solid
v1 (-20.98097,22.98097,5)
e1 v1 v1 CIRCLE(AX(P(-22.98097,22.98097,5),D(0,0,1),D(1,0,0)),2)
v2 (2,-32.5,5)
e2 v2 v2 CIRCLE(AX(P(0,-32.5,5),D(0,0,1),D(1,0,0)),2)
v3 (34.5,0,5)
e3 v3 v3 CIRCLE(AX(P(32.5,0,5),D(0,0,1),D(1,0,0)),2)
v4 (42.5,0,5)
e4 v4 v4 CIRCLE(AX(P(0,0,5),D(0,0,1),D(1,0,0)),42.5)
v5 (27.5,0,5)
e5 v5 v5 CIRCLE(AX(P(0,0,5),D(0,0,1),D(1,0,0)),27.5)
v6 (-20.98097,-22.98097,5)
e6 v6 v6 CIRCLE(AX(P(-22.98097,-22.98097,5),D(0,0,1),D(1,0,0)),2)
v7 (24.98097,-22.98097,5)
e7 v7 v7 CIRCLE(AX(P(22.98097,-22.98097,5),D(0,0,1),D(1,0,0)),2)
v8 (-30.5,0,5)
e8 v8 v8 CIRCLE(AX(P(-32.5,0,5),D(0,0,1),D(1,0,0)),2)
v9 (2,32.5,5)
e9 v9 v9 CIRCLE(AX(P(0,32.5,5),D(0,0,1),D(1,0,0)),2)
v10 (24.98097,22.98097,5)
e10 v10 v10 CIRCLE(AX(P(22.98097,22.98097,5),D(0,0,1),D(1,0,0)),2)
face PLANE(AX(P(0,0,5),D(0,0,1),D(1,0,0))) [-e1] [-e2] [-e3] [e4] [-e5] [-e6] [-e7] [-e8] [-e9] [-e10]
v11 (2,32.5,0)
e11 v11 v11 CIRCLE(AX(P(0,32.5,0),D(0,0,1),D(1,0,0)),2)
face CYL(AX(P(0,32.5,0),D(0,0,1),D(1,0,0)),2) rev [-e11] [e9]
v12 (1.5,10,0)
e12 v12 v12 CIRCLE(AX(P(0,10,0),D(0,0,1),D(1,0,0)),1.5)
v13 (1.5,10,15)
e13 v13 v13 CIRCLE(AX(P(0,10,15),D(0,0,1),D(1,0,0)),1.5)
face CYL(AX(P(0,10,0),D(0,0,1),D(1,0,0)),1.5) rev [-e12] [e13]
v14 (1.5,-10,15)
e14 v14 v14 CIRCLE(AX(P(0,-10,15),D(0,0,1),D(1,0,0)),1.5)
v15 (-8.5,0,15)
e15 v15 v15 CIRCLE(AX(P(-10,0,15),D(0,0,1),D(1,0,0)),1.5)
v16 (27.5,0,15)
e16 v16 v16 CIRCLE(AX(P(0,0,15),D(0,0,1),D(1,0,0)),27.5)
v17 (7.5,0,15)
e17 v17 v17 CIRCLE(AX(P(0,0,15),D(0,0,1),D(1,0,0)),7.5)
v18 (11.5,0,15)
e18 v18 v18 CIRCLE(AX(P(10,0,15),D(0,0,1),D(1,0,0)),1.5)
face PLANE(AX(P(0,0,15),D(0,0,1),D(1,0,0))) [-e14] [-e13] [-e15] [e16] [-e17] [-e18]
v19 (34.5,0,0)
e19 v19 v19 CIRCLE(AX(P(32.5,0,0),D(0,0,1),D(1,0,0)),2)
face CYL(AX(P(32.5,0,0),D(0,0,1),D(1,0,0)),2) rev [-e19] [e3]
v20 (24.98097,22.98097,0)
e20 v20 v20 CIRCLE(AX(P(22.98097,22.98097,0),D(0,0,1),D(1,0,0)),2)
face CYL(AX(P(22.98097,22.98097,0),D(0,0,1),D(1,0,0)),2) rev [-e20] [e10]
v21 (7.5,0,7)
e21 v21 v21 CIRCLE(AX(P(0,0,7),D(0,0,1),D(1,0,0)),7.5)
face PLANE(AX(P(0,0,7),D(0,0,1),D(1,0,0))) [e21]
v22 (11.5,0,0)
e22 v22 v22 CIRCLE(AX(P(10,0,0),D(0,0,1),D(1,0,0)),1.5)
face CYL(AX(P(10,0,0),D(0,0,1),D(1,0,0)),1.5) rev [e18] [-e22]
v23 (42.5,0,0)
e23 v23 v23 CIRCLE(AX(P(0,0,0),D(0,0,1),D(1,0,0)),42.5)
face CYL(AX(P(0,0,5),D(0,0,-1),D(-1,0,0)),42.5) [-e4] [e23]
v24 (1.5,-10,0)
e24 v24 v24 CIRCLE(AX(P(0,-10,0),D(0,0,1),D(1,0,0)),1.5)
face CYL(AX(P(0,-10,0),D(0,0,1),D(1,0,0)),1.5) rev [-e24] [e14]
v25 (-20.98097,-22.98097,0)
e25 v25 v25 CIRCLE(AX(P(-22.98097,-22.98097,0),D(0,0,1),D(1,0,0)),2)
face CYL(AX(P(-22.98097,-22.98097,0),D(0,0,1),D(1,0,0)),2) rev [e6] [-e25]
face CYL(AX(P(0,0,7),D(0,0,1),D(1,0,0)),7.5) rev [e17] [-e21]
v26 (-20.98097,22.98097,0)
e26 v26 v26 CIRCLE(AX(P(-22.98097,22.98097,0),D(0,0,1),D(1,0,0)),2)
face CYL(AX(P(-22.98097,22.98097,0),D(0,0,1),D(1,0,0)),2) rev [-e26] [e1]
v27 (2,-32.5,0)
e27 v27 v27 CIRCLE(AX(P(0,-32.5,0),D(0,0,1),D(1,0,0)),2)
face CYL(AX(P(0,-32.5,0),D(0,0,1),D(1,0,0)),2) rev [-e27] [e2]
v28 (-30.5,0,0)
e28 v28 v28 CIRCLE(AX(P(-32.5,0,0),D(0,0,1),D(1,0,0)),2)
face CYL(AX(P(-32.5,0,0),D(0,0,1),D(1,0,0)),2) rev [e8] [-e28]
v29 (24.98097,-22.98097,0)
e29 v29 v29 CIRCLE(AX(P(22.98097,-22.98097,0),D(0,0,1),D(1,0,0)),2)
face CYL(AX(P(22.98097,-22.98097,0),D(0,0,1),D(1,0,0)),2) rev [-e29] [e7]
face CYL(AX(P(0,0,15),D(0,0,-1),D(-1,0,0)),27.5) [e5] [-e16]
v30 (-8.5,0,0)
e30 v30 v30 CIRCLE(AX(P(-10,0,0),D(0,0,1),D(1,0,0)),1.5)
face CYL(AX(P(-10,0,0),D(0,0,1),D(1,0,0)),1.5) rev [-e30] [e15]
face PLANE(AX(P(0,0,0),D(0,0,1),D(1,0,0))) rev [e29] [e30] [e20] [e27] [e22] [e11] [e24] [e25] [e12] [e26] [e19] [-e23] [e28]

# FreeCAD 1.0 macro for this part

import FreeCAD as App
import Part
import Sketcher

V = App.Vector
Q = App.Units.Quantity

doc = App.newDocument("Part")
params = doc.addObject("Spreadsheet::Sheet", "Params")
for row, (alias, value) in enumerate([
    ("sketch1_diameter", "85 mm"),
    ("pad1_length", "5 mm"),
    ("sketch2_diameter", "55 mm"),
    ("pad2_length", "10 mm"),
    ("sketch3_diameter", "15 mm"),
    ("pocket1_length", "8 mm"),
    ("sketch4_diameter", "3 mm"),
    ("sketch5_diameter", "4 mm"),
], start=1):
    params.set(f"A{row}", alias)
    params.set(f"B{row}", "=" + value)
    params.setAlias(f"B{row}", alias)

body = doc.addObject("PartDesign::Body", "Body")

# Sketch on XY plane
sketch1 = doc.addObject("Sketcher::SketchObject", "Sketch")
body.addObject(sketch1)
sketch1.AttachmentSupport = (doc.XY_Plane, [""])
sketch1.MapMode = "FlatFace"
sketch1.addGeometry(Part.Circle(V(0, 0, 0), V(0, 0, 1), 42), False)
sketch1.addConstraint([
    Sketcher.Constraint("Coincident", 0, 3, -1, 1),
    Sketcher.Constraint("Diameter", 0, Q("85 mm")),
])
sketch1.setExpression("Constraints[1]", "Params.sketch1_diameter")
pad1 = doc.addObject("PartDesign::Pad", "Pad")
body.addObject(pad1)
pad1.Profile = sketch1
pad1.setExpression("Length", "Params.pad1_length")

# Sketch on XY plane
sketch2 = doc.addObject("Sketcher::SketchObject", "Sketch001")
body.addObject(sketch2)
sketch2.AttachmentSupport = (doc.XY_Plane, [""])
sketch2.MapMode = "FlatFace"
sketch2.AttachmentOffset = App.Placement(V(0, 0, 5), App.Rotation())
sketch2.addGeometry(Part.Circle(V(0, 0, 0), V(0, 0, 1), 28), False)
sketch2.addConstraint([
    Sketcher.Constraint("Coincident", 0, 3, -1, 1),
    Sketcher.Constraint("Diameter", 0, Q("55 mm")),
])
sketch2.setExpression("Constraints[1]", "Params.sketch2_diameter")
pad2 = doc.addObject("PartDesign::Pad", "Pad001")
body.addObject(pad2)
pad2.Profile = sketch2
pad2.setExpression("Length", "Params.pad2_length")

# Sketch on XY plane
sketch3 = doc.addObject("Sketcher::SketchObject", "Sketch002")
body.addObject(sketch3)
sketch3.AttachmentSupport = (doc.XY_Plane, [""])
sketch3.MapMode = "FlatFace"
sketch3.AttachmentOffset = App.Placement(V(0, 0, 15), App.Rotation())
sketch3.addGeometry(Part.Circle(V(0, 0, 0), V(0, 0, 1), 8), False)
sketch3.addConstraint([
    Sketcher.Constraint("Coincident", 0, 3, -1, 1),
    Sketcher.Constraint("Diameter", 0, Q("15 mm")),
])
sketch3.setExpression("Constraints[1]", "Params.sketch3_diameter")
pocket1 = doc.addObject("PartDesign::Pocket", "Pocket")
body.addObject(pocket1)
pocket1.Profile = sketch3
pocket1.setExpression("Length", "Params.pocket1_length")

# Sketch on XY plane
sketch4 = doc.addObject("Sketcher::SketchObject", "Sketch003")
body.addObject(sketch4)
sketch4.AttachmentSupport = (doc.XY_Plane, [""])
sketch4.MapMode = "FlatFace"
sketch4.AttachmentOffset = App.Placement(V(0, 0, 15), App.Rotation())
sketch4.addGeometry([
    Part.Circle(V(0, 10, 0), V(0, 0, 1), 1.5),
    Part.Circle(V(10, 0, 0), V(0, 0, 1), 1.5),
    Part.Circle(V(0, -10, 0), V(0, 0, 1), 1.5),
    Part.Circle(V(-10, 0, 0), V(0, 0, 1), 1.5),
], False)
sketch4.addConstraint([
    Sketcher.Constraint("Equal", 0, 1),
    Sketcher.Constraint("Equal", 1, 2),
    Sketcher.Constraint("Equal", 2, 3),
    Sketcher.Constraint("Symmetric", 0, 3, 2, 3, -1, 1),
    Sketcher.Constraint("Symmetric", 1, 3, 3, 3, -1, 1),
    Sketcher.Constraint("PointOnObject", 0, 3, -2),
    Sketcher.Constraint("PointOnObject", 1, 3, -1),
    Sketcher.Constraint("Diameter", 0, Q("3 mm")),
    Sketcher.Constraint("DistanceY", -1, 1, 0, 3, Q("10 mm")),
    Sketcher.Constraint("DistanceX", -1, 1, 1, 3, Q("10 mm")),
])
sketch4.setExpression("Constraints[7]", "Params.sketch4_diameter")
pocket2 = doc.addObject("PartDesign::Pocket", "Pocket001")
body.addObject(pocket2)
pocket2.Profile = sketch4
pocket2.Type = "ThroughAll"

# Sketch on XY plane
sketch5 = doc.addObject("Sketcher::SketchObject", "Sketch004")
body.addObject(sketch5)
sketch5.AttachmentSupport = (doc.XY_Plane, [""])
sketch5.MapMode = "FlatFace"
sketch5.AttachmentOffset = App.Placement(V(0, 0, 5), App.Rotation())
sketch5.addGeometry([
    Part.Circle(V(0, 32.5, 0), V(0, 0, 1), 2),  # 0
    Part.Circle(V(23, 23, 0), V(0, 0, 1), 2),  # 1
    Part.Circle(V(32.5, 0, 0), V(0, 0, 1), 2),  # 2
    Part.Circle(V(23, -23, 0), V(0, 0, 1), 2),  # 3
    Part.Circle(V(0, -32.5, 0), V(0, 0, 1), 2),  # 4
    Part.Circle(V(-23, -23, 0), V(0, 0, 1), 2),  # 5
    Part.Circle(V(-32.5, 0, 0), V(0, 0, 1), 2),  # 6
    Part.Circle(V(-23, 23, 0), V(0, 0, 1), 2),  # 7
], False)
sketch5.addConstraint([
    Sketcher.Constraint("Equal", 0, 1),
    Sketcher.Constraint("Equal", 1, 2),
    Sketcher.Constraint("Equal", 2, 3),
    Sketcher.Constraint("Equal", 3, 4),
    Sketcher.Constraint("Equal", 4, 5),
    Sketcher.Constraint("Equal", 5, 6),
    Sketcher.Constraint("Equal", 6, 7),
    Sketcher.Constraint("Symmetric", 0, 3, 4, 3, -1, 1),
    Sketcher.Constraint("Symmetric", 1, 3, 5, 3, -1, 1),
    Sketcher.Constraint("Symmetric", 2, 3, 6, 3, -1, 1),
    Sketcher.Constraint("Symmetric", 3, 3, 7, 3, -1, 1),
    Sketcher.Constraint("Symmetric", 3, 3, 5, 3, -2),
    Sketcher.Constraint("PointOnObject", 0, 3, -2),
    Sketcher.Constraint("PointOnObject", 2, 3, -1),
    Sketcher.Constraint("Diameter", 0, Q("4 mm")),
    Sketcher.Constraint("DistanceY", 4, 3, 0, 3, Q("65 mm")),
    Sketcher.Constraint("DistanceX", -1, 1, 2, 3, Q("32.5 mm")),
    Sketcher.Constraint("DistanceX", -1, 1, 1, 3, Q("22.98097 mm")),
    Sketcher.Constraint("DistanceY", -1, 1, 1, 3, Q("22.98097 mm")),
])
sketch5.setExpression("Constraints[14]", "Params.sketch5_diameter")
pocket3 = doc.addObject("PartDesign::Pocket", "Pocket002")
body.addObject(pocket3)
pocket3.Profile = sketch5
pocket3.Type = "ThroughAll"

doc.recompute()
